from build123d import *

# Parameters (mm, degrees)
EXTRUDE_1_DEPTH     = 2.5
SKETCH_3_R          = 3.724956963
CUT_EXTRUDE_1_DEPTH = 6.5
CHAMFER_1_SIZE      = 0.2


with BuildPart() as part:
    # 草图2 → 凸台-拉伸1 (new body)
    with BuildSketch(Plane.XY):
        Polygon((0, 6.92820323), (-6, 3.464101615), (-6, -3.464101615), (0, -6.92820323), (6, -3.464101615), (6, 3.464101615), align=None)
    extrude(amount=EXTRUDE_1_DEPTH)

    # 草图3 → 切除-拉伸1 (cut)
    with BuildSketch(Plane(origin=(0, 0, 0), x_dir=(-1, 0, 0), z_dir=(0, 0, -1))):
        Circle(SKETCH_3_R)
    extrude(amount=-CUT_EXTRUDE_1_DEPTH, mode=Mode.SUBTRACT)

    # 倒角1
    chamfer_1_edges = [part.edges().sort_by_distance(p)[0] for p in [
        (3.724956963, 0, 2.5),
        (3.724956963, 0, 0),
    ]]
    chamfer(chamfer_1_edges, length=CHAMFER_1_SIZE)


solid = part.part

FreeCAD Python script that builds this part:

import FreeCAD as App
import Part
import Sketcher
Q = App.Units.Quantity


def edges_at(feature, points):
    """Names of the edges that pass closest to the given points."""
    edges = feature.Shape.Edges
    near = lambda p: min(range(len(edges)), key=lambda i: edges[i].distToShape(Part.Vertex(*p))[0])
    return sorted({f"Edge{near(p) + 1}" for p in points})


def add_polygon(sketch, points):
    """Adds a closed chain of lines whose ends are joined by coincident constraints."""
    first, n = sketch.GeometryCount, len(points)
    for a, b in zip(points, points[1:] + points[:1]):
        sketch.addGeometry(Part.LineSegment(App.Vector(*a, 0), App.Vector(*b, 0)), False)
    for i in range(n):
        sketch.addConstraint(Sketcher.Constraint("Coincident", first + i, 2, first + (i + 1) % n, 1))

doc = App.newDocument("Part")
body = doc.addObject("PartDesign::Body", "Body")

# Sketch on XY plane
sketch1 = body.newObject("Sketcher::SketchObject", "Sketch")
sketch1.AttachmentSupport = (doc.getObject("XY_Plane"), [""])
sketch1.MapMode = "FlatFace"
add_polygon(sketch1, [(0, 6.928203), (-6, 3.464102), (-6, -3.464102), (0, -6.928203), (6, -3.464102), (6, 3.464102)])  # lines 0-5
sketch1.addConstraint([
    Sketcher.Constraint("Vertical", 1),
    Sketcher.Constraint("Vertical", 4),
    Sketcher.Constraint("Symmetric", 0, 2, 3, 2, -1, 1),
    Sketcher.Constraint("Symmetric", 2, 2, 5, 2, -1, 1),
    Sketcher.Constraint("PointOnObject", 2, 2, -2),
    Sketcher.Constraint("Parallel", 2, 5),
    Sketcher.Constraint("Horizontal", 1, 2, 3, 2),
    Sketcher.Constraint("Angle", 0, Q("-150 deg")),
    Sketcher.Constraint("DistanceX", 0, 2, -1, 1, 6.0),
    Sketcher.Constraint("DistanceY", -1, 1, 0, 2, 3.464102),
])
pad1 = body.newObject("PartDesign::Pad", "Pad")
pad1.Profile = sketch1
pad1.Length = 2.5

# Sketch on XY plane
sketch2 = body.newObject("Sketcher::SketchObject", "Sketch001")
sketch2.AttachmentSupport = (doc.getObject("XY_Plane"), [""])
sketch2.MapMode = "FlatFace"
sketch2.addGeometry(Part.Circle(App.Vector(0, 0, 0), App.Vector(0, 0, 1), 3.724957), False)
sketch2.addConstraint([
    Sketcher.Constraint("Coincident", 0, 3, -1, 1),
    Sketcher.Constraint("Diameter", 0, 7.449914),
])
pocket1 = body.newObject("PartDesign::Pocket", "Pocket")
pocket1.Profile = sketch2
pocket1.Length = 6.5
pocket1.Reversed = True
doc.recompute()

chamfer = body.newObject("PartDesign::Chamfer", "Chamfer")
chamfer.Base = (pocket1, edges_at(pocket1, [(3.725, 0, 2.5), (3.725, 0, 0)]))
chamfer.Size = 0.2

doc.recompute()
